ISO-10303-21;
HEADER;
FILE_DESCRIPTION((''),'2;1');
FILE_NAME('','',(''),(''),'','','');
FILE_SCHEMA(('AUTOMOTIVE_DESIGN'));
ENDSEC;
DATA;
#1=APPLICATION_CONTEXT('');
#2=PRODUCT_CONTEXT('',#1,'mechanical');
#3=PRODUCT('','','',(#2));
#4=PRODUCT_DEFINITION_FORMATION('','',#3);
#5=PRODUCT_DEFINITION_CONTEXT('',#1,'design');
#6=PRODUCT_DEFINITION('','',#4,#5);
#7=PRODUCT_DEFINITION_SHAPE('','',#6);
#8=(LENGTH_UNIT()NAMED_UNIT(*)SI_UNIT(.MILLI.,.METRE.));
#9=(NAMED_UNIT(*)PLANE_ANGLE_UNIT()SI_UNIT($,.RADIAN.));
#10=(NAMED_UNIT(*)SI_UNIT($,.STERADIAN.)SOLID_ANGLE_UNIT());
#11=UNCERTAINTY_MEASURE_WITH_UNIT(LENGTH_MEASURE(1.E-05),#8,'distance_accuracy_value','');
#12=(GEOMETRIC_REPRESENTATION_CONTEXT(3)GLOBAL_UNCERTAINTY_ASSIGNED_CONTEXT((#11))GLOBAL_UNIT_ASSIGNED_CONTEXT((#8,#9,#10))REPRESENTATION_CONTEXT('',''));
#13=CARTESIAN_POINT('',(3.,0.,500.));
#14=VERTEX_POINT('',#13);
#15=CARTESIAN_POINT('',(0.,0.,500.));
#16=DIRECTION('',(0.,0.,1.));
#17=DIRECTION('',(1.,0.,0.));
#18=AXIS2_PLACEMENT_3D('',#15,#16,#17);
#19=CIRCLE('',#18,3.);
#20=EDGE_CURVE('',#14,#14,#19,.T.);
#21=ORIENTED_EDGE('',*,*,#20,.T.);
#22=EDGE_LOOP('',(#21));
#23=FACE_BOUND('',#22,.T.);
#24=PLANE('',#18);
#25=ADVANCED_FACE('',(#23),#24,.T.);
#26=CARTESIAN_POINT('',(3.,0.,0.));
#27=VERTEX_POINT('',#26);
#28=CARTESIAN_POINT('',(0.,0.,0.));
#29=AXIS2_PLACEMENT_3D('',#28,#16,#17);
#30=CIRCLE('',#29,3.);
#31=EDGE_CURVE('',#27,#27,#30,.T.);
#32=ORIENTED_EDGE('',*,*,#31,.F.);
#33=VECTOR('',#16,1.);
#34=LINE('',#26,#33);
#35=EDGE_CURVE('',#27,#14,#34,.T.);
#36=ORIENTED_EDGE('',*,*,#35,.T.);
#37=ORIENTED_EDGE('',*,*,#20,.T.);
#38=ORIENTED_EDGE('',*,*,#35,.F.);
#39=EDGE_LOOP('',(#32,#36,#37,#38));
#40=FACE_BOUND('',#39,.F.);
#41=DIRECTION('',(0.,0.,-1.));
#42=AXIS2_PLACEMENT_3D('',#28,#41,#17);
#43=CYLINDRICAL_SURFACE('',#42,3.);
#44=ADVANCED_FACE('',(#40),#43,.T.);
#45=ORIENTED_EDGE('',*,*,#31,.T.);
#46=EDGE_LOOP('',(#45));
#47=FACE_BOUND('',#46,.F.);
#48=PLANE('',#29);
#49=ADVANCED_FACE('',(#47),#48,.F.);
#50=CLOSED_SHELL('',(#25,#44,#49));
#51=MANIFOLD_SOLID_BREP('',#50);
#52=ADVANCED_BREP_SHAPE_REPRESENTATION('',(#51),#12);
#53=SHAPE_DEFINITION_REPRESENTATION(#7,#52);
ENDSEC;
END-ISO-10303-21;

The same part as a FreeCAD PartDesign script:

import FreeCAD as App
import Part
import Sketcher

V = App.Vector

doc = App.newDocument("Part")
body = doc.addObject("PartDesign::Body", "Body")

# Sketch on XY plane
sketch1 = body.newObject("Sketcher::SketchObject", "Sketch")
sketch1.AttachmentSupport = (doc.getObject("XY_Plane"), [""])
sketch1.MapMode = "FlatFace"
sketch1.addGeometry(Part.Circle(V(0, 0, 0), V(0, 0, 1), 3), False)
sketch1.addConstraint([
    Sketcher.Constraint("Coincident", 0, 3, -1, 1),
    Sketcher.Constraint("Diameter", 0, 6.0),
])
pad1 = body.newObject("PartDesign::Pad", "Pad")
pad1.Profile = sketch1
pad1.Length = 500

doc.recompute()
